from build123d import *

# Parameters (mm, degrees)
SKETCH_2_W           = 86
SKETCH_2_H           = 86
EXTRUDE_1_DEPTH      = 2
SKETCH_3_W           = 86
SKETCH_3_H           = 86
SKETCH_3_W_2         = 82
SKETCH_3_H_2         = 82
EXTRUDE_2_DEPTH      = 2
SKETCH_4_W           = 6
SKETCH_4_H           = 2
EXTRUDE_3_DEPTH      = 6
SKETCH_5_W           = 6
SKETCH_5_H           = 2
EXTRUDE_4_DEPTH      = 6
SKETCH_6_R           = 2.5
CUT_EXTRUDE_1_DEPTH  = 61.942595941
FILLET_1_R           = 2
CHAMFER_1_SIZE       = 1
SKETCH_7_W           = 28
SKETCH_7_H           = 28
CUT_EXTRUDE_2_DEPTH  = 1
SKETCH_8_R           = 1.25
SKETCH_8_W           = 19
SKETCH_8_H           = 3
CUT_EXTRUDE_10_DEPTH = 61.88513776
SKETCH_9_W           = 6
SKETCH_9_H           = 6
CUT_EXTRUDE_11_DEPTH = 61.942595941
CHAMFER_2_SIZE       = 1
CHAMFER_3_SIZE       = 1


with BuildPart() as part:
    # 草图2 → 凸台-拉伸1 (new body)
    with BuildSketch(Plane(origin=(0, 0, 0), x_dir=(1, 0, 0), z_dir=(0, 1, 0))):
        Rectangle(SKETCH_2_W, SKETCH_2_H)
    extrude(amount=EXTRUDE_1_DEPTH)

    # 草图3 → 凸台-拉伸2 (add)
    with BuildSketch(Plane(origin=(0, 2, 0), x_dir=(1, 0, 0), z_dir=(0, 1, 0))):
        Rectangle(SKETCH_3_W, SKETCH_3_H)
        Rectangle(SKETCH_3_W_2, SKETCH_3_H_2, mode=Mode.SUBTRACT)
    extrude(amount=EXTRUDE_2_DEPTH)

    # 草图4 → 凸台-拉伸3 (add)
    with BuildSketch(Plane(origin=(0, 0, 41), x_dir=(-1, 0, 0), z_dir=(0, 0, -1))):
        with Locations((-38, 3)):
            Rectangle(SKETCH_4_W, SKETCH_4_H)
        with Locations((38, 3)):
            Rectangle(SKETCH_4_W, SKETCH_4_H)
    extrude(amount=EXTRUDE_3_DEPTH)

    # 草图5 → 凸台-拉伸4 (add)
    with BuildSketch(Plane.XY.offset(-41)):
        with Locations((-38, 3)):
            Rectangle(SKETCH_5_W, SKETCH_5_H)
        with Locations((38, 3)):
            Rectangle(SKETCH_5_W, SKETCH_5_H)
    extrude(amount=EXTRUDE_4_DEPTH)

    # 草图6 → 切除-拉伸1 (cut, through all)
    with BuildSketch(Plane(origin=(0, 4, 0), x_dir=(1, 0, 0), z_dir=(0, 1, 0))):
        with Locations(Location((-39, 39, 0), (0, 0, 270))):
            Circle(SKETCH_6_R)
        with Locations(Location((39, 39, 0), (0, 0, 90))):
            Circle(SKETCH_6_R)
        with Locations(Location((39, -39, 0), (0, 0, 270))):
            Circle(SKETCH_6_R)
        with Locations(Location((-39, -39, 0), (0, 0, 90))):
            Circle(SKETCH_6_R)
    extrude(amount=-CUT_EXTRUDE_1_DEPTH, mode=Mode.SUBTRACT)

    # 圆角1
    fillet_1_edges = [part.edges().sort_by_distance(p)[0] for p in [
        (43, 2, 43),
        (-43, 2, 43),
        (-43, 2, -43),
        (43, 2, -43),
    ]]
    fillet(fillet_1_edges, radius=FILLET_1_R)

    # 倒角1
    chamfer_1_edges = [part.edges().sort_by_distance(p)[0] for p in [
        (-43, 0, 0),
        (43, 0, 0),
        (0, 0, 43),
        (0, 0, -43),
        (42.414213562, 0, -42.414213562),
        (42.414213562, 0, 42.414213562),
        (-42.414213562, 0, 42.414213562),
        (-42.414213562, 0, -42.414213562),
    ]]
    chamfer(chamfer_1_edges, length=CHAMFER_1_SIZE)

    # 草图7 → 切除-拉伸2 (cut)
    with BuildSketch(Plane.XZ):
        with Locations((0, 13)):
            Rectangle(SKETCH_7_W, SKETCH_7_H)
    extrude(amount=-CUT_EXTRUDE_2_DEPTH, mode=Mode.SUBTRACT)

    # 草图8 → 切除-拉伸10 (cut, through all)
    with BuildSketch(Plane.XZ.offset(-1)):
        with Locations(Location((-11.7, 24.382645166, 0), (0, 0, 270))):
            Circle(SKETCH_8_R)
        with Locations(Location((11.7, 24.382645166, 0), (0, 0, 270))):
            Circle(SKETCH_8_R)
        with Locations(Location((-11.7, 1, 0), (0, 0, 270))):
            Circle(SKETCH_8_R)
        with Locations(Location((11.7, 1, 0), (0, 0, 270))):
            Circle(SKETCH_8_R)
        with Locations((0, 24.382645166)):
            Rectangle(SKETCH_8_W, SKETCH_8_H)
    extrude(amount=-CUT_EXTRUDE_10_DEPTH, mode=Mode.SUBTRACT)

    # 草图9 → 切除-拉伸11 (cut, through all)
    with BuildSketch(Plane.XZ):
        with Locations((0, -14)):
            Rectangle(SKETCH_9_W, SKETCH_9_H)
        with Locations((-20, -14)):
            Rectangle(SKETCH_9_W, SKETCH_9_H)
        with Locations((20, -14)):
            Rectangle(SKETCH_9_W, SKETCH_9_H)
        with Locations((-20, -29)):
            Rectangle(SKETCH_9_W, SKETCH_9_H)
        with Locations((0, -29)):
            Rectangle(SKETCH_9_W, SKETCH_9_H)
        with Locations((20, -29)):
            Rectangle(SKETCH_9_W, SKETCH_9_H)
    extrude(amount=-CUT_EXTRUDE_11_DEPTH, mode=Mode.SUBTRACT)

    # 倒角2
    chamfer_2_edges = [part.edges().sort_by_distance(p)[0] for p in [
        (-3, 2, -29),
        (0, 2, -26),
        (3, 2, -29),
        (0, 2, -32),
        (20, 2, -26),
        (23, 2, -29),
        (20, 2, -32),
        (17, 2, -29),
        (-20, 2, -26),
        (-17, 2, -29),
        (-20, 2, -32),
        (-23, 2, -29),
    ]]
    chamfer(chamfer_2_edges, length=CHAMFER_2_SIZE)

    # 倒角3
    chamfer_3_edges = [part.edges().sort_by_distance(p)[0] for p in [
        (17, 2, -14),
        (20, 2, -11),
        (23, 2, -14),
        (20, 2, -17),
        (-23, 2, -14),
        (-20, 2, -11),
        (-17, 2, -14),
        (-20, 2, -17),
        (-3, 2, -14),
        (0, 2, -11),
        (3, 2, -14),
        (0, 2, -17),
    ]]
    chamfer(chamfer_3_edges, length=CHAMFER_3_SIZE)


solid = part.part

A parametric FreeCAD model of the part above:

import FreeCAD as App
import Part
import Sketcher
Q = App.Units.Quantity


def edges_at(feature, points):
    """Names of the edges that pass closest to the given points."""
    edges = feature.Shape.Edges
    near = lambda p: min(range(len(edges)), key=lambda i: edges[i].distToShape(Part.Vertex(*p))[0])
    return sorted({f"Edge{near(p) + 1}" for p in points})


def add_polygon(sketch, points):
    """Adds a closed chain of lines whose ends are joined by coincident constraints."""
    first, n = sketch.GeometryCount, len(points)
    for a, b in zip(points, points[1:] + points[:1]):
        sketch.addGeometry(Part.LineSegment(App.Vector(*a, 0), App.Vector(*b, 0)), False)
    for i in range(n):
        sketch.addConstraint(Sketcher.Constraint("Coincident", first + i, 2, first + (i + 1) % n, 1))

doc = App.newDocument("Part")
body = doc.addObject("PartDesign::Body", "Body")

sketch1 = doc.addObject("Sketcher::SketchObject", "Sketch")
body.addObject(sketch1)
sketch1.AttachmentSupport = (doc.XZ_Plane, [""])
sketch1.MapMode = "FlatFace"
add_polygon(sketch1, [(-43, -43), (-43, 43), (43, 43), (43, -43)])
sketch1.addConstraint(Sketcher.Constraint("Vertical", 0))
sketch1.addConstraint(Sketcher.Constraint("Horizontal", 1))
sketch1.addConstraint(Sketcher.Constraint("Vertical", 2))
sketch1.addConstraint(Sketcher.Constraint("Horizontal", 3))
sketch1.addConstraint(Sketcher.Constraint("Symmetric", 0, 2, 2, 2, -1, 1))
sketch1.addConstraint(Sketcher.Constraint("Equal", 3, 0))
sketch1.addConstraint(Sketcher.Constraint("DistanceX", 1, 1, 1, 2, Q("86 mm")))
pad1 = doc.addObject("PartDesign::Pad", "Pad")
body.addObject(pad1)
pad1.Profile = sketch1
pad1.Length = 2
pad1.Reversed = True

sketch2 = doc.addObject("Sketcher::SketchObject", "Sketch001")
body.addObject(sketch2)
sketch2.AttachmentSupport = (doc.XZ_Plane, [""])
sketch2.MapMode = "FlatFace"
sketch2.AttachmentOffset = App.Placement(App.Vector(0, 0, -2), App.Rotation())
add_polygon(sketch2, [(-43, -43), (-43, 43), (43, 43), (43, -43)])
add_polygon(sketch2, [(41, 41), (-41, 41), (-41, -41), (41, -41)])
sketch2.addConstraint(Sketcher.Constraint("Vertical", 0))
sketch2.addConstraint(Sketcher.Constraint("Horizontal", 1))
sketch2.addConstraint(Sketcher.Constraint("Vertical", 2))
sketch2.addConstraint(Sketcher.Constraint("Horizontal", 3))
sketch2.addConstraint(Sketcher.Constraint("Horizontal", 4))
sketch2.addConstraint(Sketcher.Constraint("Vertical", 5))
sketch2.addConstraint(Sketcher.Constraint("Horizontal", 6))
sketch2.addConstraint(Sketcher.Constraint("Vertical", 7))
sketch2.addConstraint(Sketcher.Constraint("Symmetric", 0, 2, 2, 2, -1, 1))
sketch2.addConstraint(Sketcher.Constraint("Symmetric", 4, 2, 6, 2, -1, 1))
sketch2.addConstraint(Sketcher.Constraint("Equal", 3, 0))
sketch2.addConstraint(Sketcher.Constraint("Equal", 6, 5))
sketch2.addConstraint(Sketcher.Constraint("DistanceX", 1, 1, 1, 2, Q("86 mm")))
sketch2.addConstraint(Sketcher.Constraint("DistanceX", 4, 2, 4, 1, Q("82 mm")))
pad2 = doc.addObject("PartDesign::Pad", "Pad001")
body.addObject(pad2)
pad2.Profile = sketch2
pad2.Length = 2
pad2.Reversed = True

sketch3 = doc.addObject("Sketcher::SketchObject", "Sketch002")
body.addObject(sketch3)
sketch3.AttachmentSupport = (doc.XY_Plane, [""])
sketch3.MapMode = "FlatFace"
sketch3.AttachmentOffset = App.Placement(App.Vector(0, 0, 41), App.Rotation())
add_polygon(sketch3, [(41, 4), (41, 2), (35, 2), (35, 4)])
add_polygon(sketch3, [(-35, 4), (-35, 2), (-41, 2), (-41, 4)])
sketch3.addConstraint(Sketcher.Constraint("Vertical", 0))
sketch3.addConstraint(Sketcher.Constraint("Horizontal", 1))
sketch3.addConstraint(Sketcher.Constraint("Vertical", 2))
sketch3.addConstraint(Sketcher.Constraint("Horizontal", 3))
sketch3.addConstraint(Sketcher.Constraint("Vertical", 4))
sketch3.addConstraint(Sketcher.Constraint("Horizontal", 5))
sketch3.addConstraint(Sketcher.Constraint("Vertical", 6))
sketch3.addConstraint(Sketcher.Constraint("Horizontal", 7))
sketch3.addConstraint(Sketcher.Constraint("Symmetric", 1, 2, 4, 2, -2))
sketch3.addConstraint(Sketcher.Constraint("Symmetric", 3, 2, 6, 2, -2))
sketch3.addConstraint(Sketcher.Constraint("DistanceX", 1, 2, 1, 1, Q("6 mm")))
sketch3.addConstraint(Sketcher.Constraint("DistanceY", 0, 2, 0, 1, Q("2 mm")))
sketch3.addConstraint(Sketcher.Constraint("DistanceX", -1, 1, 0, 2, Q("41 mm")))
sketch3.addConstraint(Sketcher.Constraint("DistanceY", -1, 1, 0, 2, Q("2 mm")))
pad3 = doc.addObject("PartDesign::Pad", "Pad002")
body.addObject(pad3)
pad3.Profile = sketch3
pad3.Length = 6
pad3.Reversed = True

sketch4 = doc.addObject("Sketcher::SketchObject", "Sketch003")
body.addObject(sketch4)
sketch4.AttachmentSupport = (doc.XY_Plane, [""])
sketch4.MapMode = "FlatFace"
sketch4.AttachmentOffset = App.Placement(App.Vector(0, 0, -41), App.Rotation())
add_polygon(sketch4, [(-41, 4), (-41, 2), (-35, 2), (-35, 4)])
add_polygon(sketch4, [(35, 4), (35, 2), (41, 2), (41, 4)])
sketch4.addConstraint(Sketcher.Constraint("Vertical", 0))
sketch4.addConstraint(Sketcher.Constraint("Horizontal", 1))
sketch4.addConstraint(Sketcher.Constraint("Vertical", 2))
sketch4.addConstraint(Sketcher.Constraint("Horizontal", 3))
sketch4.addConstraint(Sketcher.Constraint("Vertical", 4))
sketch4.addConstraint(Sketcher.Constraint("Horizontal", 5))
sketch4.addConstraint(Sketcher.Constraint("Vertical", 6))
sketch4.addConstraint(Sketcher.Constraint("Horizontal", 7))
sketch4.addConstraint(Sketcher.Constraint("Symmetric", 1, 2, 4, 2, -2))
sketch4.addConstraint(Sketcher.Constraint("Symmetric", 3, 2, 6, 2, -2))
sketch4.addConstraint(Sketcher.Constraint("DistanceX", 1, 1, 1, 2, Q("6 mm")))
sketch4.addConstraint(Sketcher.Constraint("DistanceY", 0, 2, 0, 1, Q("2 mm")))
sketch4.addConstraint(Sketcher.Constraint("DistanceX", 0, 2, -1, 1, Q("41 mm")))
sketch4.addConstraint(Sketcher.Constraint("DistanceY", -1, 1, 0, 2, Q("2 mm")))
pad4 = doc.addObject("PartDesign::Pad", "Pad003")
body.addObject(pad4)
pad4.Profile = sketch4
pad4.Length = 6

sketch5 = doc.addObject("Sketcher::SketchObject", "Sketch004")
body.addObject(sketch5)
sketch5.AttachmentSupport = (doc.XZ_Plane, [""])
sketch5.MapMode = "FlatFace"
sketch5.AttachmentOffset = App.Placement(App.Vector(0, 0, -4), App.Rotation())
sketch5.addGeometry(Part.Circle(App.Vector(-39, -39, 0), App.Vector(0, 0, 1), 2.5), False)
sketch5.addGeometry(Part.Circle(App.Vector(39, -39, 0), App.Vector(0, 0, 1), 2.5), False)
sketch5.addGeometry(Part.Circle(App.Vector(39, 39, 0), App.Vector(0, 0, 1), 2.5), False)
sketch5.addGeometry(Part.Circle(App.Vector(-39, 39, 0), App.Vector(0, 0, 1), 2.5), False)
sketch5.addConstraint(Sketcher.Constraint("Equal", 0, 1))
sketch5.addConstraint(Sketcher.Constraint("Equal", 1, 2))
sketch5.addConstraint(Sketcher.Constraint("Equal", 2, 3))
sketch5.addConstraint(Sketcher.Constraint("Symmetric", 0, 3, 2, 3, -1, 1))
sketch5.addConstraint(Sketcher.Constraint("Symmetric", 1, 3, 3, 3, -1, 1))
sketch5.addConstraint(Sketcher.Constraint("Symmetric", 0, 3, 1, 3, -2))
sketch5.addConstraint(Sketcher.Constraint("Diameter", 0, Q("5 mm")))
sketch5.addConstraint(Sketcher.Constraint("DistanceX", 0, 3, -1, 1, Q("39 mm")))
sketch5.addConstraint(Sketcher.Constraint("DistanceY", 0, 3, -1, 1, Q("39 mm")))
pocket1 = doc.addObject("PartDesign::Pocket", "Pocket")
body.addObject(pocket1)
pocket1.Profile = sketch5
pocket1.Type = "ThroughAll"
pocket1.Reversed = True
doc.recompute()

fillet = doc.addObject("PartDesign::Fillet", "Fillet")
body.addObject(fillet)
fillet.Base = (pocket1, edges_at(pocket1, [
    (43, 2, 43),
    (-43, 2, 43),
    (-43, 2, -43),
    (43, 2, -43),
]))
fillet.Radius = 2
doc.recompute()

chamfer = doc.addObject("PartDesign::Chamfer", "Chamfer")
body.addObject(chamfer)
chamfer.Base = (fillet, edges_at(fillet, [
    (-43, 0, 0),
    (43, 0, 0),
    (0, 0, 43),
    (0, 0, -43),
    (42.414, 0, -42.414),
    (42.414, 0, 42.414),
    (-42.414, 0, 42.414),
    (-42.414, 0, -42.414),
]))
chamfer.Size = 1

sketch6 = doc.addObject("Sketcher::SketchObject", "Sketch005")
body.addObject(sketch6)
sketch6.AttachmentSupport = (doc.XZ_Plane, [""])
sketch6.MapMode = "FlatFace"
add_polygon(sketch6, [(-14, 27), (-14, -1), (14, -1), (14, 27)])
sketch6.addConstraint(Sketcher.Constraint("Vertical", 0))
sketch6.addConstraint(Sketcher.Constraint("Horizontal", 1))
sketch6.addConstraint(Sketcher.Constraint("Vertical", 2))
sketch6.addConstraint(Sketcher.Constraint("Horizontal", 3))
sketch6.addConstraint(Sketcher.Constraint("Equal", 3, 0))
sketch6.addConstraint(Sketcher.Constraint("DistanceX", 1, 1, 1, 2, Q("28 mm")))
sketch6.addConstraint(Sketcher.Constraint("DistanceX", 0, 2, -1, 1, Q("14 mm")))
sketch6.addConstraint(Sketcher.Constraint("DistanceY", 0, 2, -1, 1, Q("1 mm")))
pocket2 = doc.addObject("PartDesign::Pocket", "Pocket001")
body.addObject(pocket2)
pocket2.Profile = sketch6
pocket2.Length = 1

sketch7 = doc.addObject("Sketcher::SketchObject", "Sketch006")
body.addObject(sketch7)
sketch7.AttachmentSupport = (doc.XZ_Plane, [""])
sketch7.MapMode = "FlatFace"
sketch7.AttachmentOffset = App.Placement(App.Vector(0, 0, -1), App.Rotation())
sketch7.addGeometry(Part.Circle(App.Vector(-11.7, 24.382645, 0), App.Vector(0, 0, 1), 1.25), False)
sketch7.addGeometry(Part.Circle(App.Vector(11.7, 24.382645, 0), App.Vector(0, 0, 1), 1.25), False)
sketch7.addGeometry(Part.Circle(App.Vector(-11.7, 1, 0), App.Vector(0, 0, 1), 1.25), False)
sketch7.addGeometry(Part.Circle(App.Vector(11.7, 1, 0), App.Vector(0, 0, 1), 1.25), False)
add_polygon(sketch7, [(-9.5, 25.882645), (-9.5, 22.882645), (9.5, 22.882645), (9.5, 25.882645)])
sketch7.addConstraint(Sketcher.Constraint("Vertical", 4))
sketch7.addConstraint(Sketcher.Constraint("Horizontal", 5))
sketch7.addConstraint(Sketcher.Constraint("Vertical", 6))
sketch7.addConstraint(Sketcher.Constraint("Horizontal", 7))
sketch7.addConstraint(Sketcher.Constraint("Equal", 0, 1))
sketch7.addConstraint(Sketcher.Constraint("Equal", 1, 2))
sketch7.addConstraint(Sketcher.Constraint("Equal", 2, 3))
sketch7.addConstraint(Sketcher.Constraint("Symmetric", 0, 3, 1, 3, -2))
sketch7.addConstraint(Sketcher.Constraint("Symmetric", 2, 3, 3, 3, -2))
sketch7.addConstraint(Sketcher.Constraint("Vertical", 0, 3, 2, 3))
sketch7.addConstraint(Sketcher.Constraint("Diameter", 0, Q("2.5 mm")))
sketch7.addConstraint(Sketcher.Constraint("DistanceX", 5, 1, 5, 2, Q("19 mm")))
sketch7.addConstraint(Sketcher.Constraint("DistanceY", 4, 2, 4, 1, Q("3 mm")))
sketch7.addConstraint(Sketcher.Constraint("DistanceY", -1, 1, 2, 3, Q("1 mm")))
sketch7.addConstraint(Sketcher.Constraint("DistanceX", 0, 3, -1, 1, Q("11.7 mm")))
sketch7.addConstraint(Sketcher.Constraint("DistanceX", 4, 2, -1, 1, Q("9.5 mm")))
sketch7.addConstraint(Sketcher.Constraint("DistanceY", 4, 2, 0, 3, Q("1.5 mm")))
sketch7.addConstraint(Sketcher.Constraint("DistanceY", -1, 1, 0, 3, Q("24.382645 mm")))
pocket3 = doc.addObject("PartDesign::Pocket", "Pocket002")
body.addObject(pocket3)
pocket3.Profile = sketch7
pocket3.Type = "ThroughAll"

sketch8 = doc.addObject("Sketcher::SketchObject", "Sketch007")
body.addObject(sketch8)
sketch8.AttachmentSupport = (doc.XZ_Plane, [""])
sketch8.MapMode = "FlatFace"
add_polygon(sketch8, [(-3, -11), (-3, -17), (3, -17), (3, -11)])
add_polygon(sketch8, [(-23, -11), (-23, -17), (-17, -17), (-17, -11)])
add_polygon(sketch8, [(17, -11), (17, -17), (23, -17), (23, -11)])
add_polygon(sketch8, [(-23, -26), (-23, -32), (-17, -32), (-17, -26)])
add_polygon(sketch8, [(-3, -26), (-3, -32), (3, -32), (3, -26)])
add_polygon(sketch8, [(17, -26), (17, -32), (23, -32), (23, -26)])
sketch8.addConstraint(Sketcher.Constraint("Vertical", 0))
sketch8.addConstraint(Sketcher.Constraint("Horizontal", 1))
sketch8.addConstraint(Sketcher.Constraint("Vertical", 2))
sketch8.addConstraint(Sketcher.Constraint("Horizontal", 3))
sketch8.addConstraint(Sketcher.Constraint("Vertical", 4))
sketch8.addConstraint(Sketcher.Constraint("Horizontal", 5))
sketch8.addConstraint(Sketcher.Constraint("Vertical", 6))
sketch8.addConstraint(Sketcher.Constraint("Horizontal", 7))
sketch8.addConstraint(Sketcher.Constraint("Vertical", 8))
sketch8.addConstraint(Sketcher.Constraint("Horizontal", 9))
sketch8.addConstraint(Sketcher.Constraint("Vertical", 10))
sketch8.addConstraint(Sketcher.Constraint("Horizontal", 11))
sketch8.addConstraint(Sketcher.Constraint("Vertical", 12))
sketch8.addConstraint(Sketcher.Constraint("Horizontal", 13))
sketch8.addConstraint(Sketcher.Constraint("Vertical", 14))
sketch8.addConstraint(Sketcher.Constraint("Horizontal", 15))
sketch8.addConstraint(Sketcher.Constraint("Vertical", 16))
sketch8.addConstraint(Sketcher.Constraint("Horizontal", 17))
sketch8.addConstraint(Sketcher.Constraint("Vertical", 18))
sketch8.addConstraint(Sketcher.Constraint("Horizontal", 19))
sketch8.addConstraint(Sketcher.Constraint("Vertical", 20))
sketch8.addConstraint(Sketcher.Constraint("Horizontal", 21))
sketch8.addConstraint(Sketcher.Constraint("Vertical", 22))
sketch8.addConstraint(Sketcher.Constraint("Horizontal", 23))
sketch8.addConstraint(Sketcher.Constraint("Symmetric", 5, 2, 8, 2, -2))
sketch8.addConstraint(Sketcher.Constraint("Symmetric", 7, 2, 10, 2, -2))
sketch8.addConstraint(Sketcher.Constraint("Symmetric", 13, 2, 20, 2, -2))
sketch8.addConstraint(Sketcher.Constraint("Symmetric", 15, 2, 22, 2, -2))
sketch8.addConstraint(Sketcher.Constraint("Horizontal", 1, 2, 4, 2))
sketch8.addConstraint(Sketcher.Constraint("Horizontal", 3, 2, 6, 2))
sketch8.addConstraint(Sketcher.Constraint("Horizontal", 13, 2, 16, 2))
sketch8.addConstraint(Sketcher.Constraint("Horizontal", 15, 2, 18, 2))
sketch8.addConstraint(Sketcher.Constraint("Vertical", 7, 2, 12, 2))
sketch8.addConstraint(Sketcher.Constraint("Vertical", 6, 2, 13, 2))
sketch8.addConstraint(Sketcher.Constraint("Vertical", 3, 2, 16, 2))
sketch8.addConstraint(Sketcher.Constraint("Vertical", 2, 2, 17, 2))
sketch8.addConstraint(Sketcher.Constraint("Equal", 3, 5))
sketch8.addConstraint(Sketcher.Constraint("Equal", 23, 0))
sketch8.addConstraint(Sketcher.Constraint("Equal", 10, 12))
sketch8.addConstraint(Sketcher.Constraint("DistanceX", 1, 1, 1, 2, Q("6 mm")))
sketch8.addConstraint(Sketcher.Constraint("DistanceX", 0, 2, -1, 1, Q("3 mm")))
sketch8.addConstraint(Sketcher.Constraint("DistanceY", 0, 2, -1, 1, Q("17 mm")))
sketch8.addConstraint(Sketcher.Constraint("DistanceX", 4, 2, -1, 1, Q("23 mm")))
sketch8.addConstraint(Sketcher.Constraint("DistanceY", 12, 2, -1, 1, Q("32 mm")))
pocket4 = doc.addObject("PartDesign::Pocket", "Pocket003")
body.addObject(pocket4)
pocket4.Profile = sketch8
pocket4.Type = "ThroughAll"
doc.recompute()

chamfer2 = doc.addObject("PartDesign::Chamfer", "Chamfer001")
body.addObject(chamfer2)
chamfer2.Base = (pocket4, edges_at(pocket4, [
    (-3, 2, -29),
    (0, 2, -26),
    (3, 2, -29),
    (0, 2, -32),
    (20, 2, -26),
    (23, 2, -29),
    (20, 2, -32),
    (17, 2, -29),
    (-20, 2, -26),
    (-17, 2, -29),
    (-20, 2, -32),
    (-23, 2, -29),
]))
chamfer2.Size = 1
doc.recompute()

chamfer3 = doc.addObject("PartDesign::Chamfer", "Chamfer002")
body.addObject(chamfer3)
chamfer3.Base = (chamfer2, edges_at(chamfer2, [
    (17, 2, -14),
    (20, 2, -11),
    (23, 2, -14),
    (20, 2, -17),
    (-23, 2, -14),
    (-20, 2, -11),
    (-17, 2, -14),
    (-20, 2, -17),
    (-3, 2, -14),
    (0, 2, -11),
    (3, 2, -14),
    (0, 2, -17),
]))
chamfer3.Size = 1

doc.recompute()
